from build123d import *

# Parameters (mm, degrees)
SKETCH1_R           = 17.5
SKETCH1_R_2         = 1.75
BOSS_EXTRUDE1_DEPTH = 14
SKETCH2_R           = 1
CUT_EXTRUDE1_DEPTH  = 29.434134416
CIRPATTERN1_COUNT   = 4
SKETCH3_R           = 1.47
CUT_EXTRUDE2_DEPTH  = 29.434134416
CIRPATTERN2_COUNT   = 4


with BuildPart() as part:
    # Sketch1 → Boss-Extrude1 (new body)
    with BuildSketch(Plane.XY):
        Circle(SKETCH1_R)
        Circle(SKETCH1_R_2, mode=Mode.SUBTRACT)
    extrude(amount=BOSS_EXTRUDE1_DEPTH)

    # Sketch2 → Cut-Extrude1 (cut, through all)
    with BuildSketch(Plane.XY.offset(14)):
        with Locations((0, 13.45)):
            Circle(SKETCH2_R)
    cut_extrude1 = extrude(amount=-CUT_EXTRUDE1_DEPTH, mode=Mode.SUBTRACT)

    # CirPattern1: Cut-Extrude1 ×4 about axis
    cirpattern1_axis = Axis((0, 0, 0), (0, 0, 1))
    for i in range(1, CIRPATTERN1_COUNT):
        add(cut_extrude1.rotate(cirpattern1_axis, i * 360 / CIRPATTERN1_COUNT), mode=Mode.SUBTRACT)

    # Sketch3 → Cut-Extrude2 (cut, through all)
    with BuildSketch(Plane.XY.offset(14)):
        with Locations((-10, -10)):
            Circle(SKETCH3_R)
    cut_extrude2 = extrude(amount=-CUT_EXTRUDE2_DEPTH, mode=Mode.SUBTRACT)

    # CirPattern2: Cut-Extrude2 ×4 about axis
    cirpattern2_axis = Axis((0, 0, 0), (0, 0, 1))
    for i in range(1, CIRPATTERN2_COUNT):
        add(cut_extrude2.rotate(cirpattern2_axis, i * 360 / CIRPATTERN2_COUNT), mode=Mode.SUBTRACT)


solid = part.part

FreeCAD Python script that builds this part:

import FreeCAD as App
import Part
import Sketcher
from FreeCAD import Vector
Q = App.Units.Quantity

doc = App.newDocument("Part")
body = doc.addObject("PartDesign::Body", "Body")

sketch1 = doc.addObject("Sketcher::SketchObject", "Sketch")
body.addObject(sketch1)
sketch1.AttachmentSupport = (doc.XY_Plane, [""])
sketch1.MapMode = "FlatFace"
sketch1.addGeometry(Part.Circle(Vector(0, 0, 0), Vector(0, 0, 1), 17.5), False)
sketch1.addGeometry(Part.Circle(Vector(0, 0, 0), Vector(0, 0, 1), 1.75), False)
sketch1.addConstraint(Sketcher.Constraint("Coincident", 0, 3, -1, 1))
sketch1.addConstraint(Sketcher.Constraint("Coincident", 1, 3, -1, 1))
sketch1.addConstraint(Sketcher.Constraint("Diameter", 0, Q("35 mm")))
sketch1.addConstraint(Sketcher.Constraint("Diameter", 1, Q("3.5 mm")))
pad1 = doc.addObject("PartDesign::Pad", "Pad")
body.addObject(pad1)
pad1.Profile = sketch1
pad1.Length = 14

sketch2 = doc.addObject("Sketcher::SketchObject", "Sketch001")
body.addObject(sketch2)
sketch2.AttachmentSupport = (doc.XY_Plane, [""])
sketch2.MapMode = "FlatFace"
sketch2.AttachmentOffset = App.Placement(Vector(0, 0, 14), App.Rotation())
sketch2.addGeometry(Part.Circle(Vector(0, 13.45, 0), Vector(0, 0, 1), 1), False)
sketch2.addConstraint(Sketcher.Constraint("PointOnObject", 0, 3, -2))
sketch2.addConstraint(Sketcher.Constraint("Diameter", 0, Q("2 mm")))
sketch2.addConstraint(Sketcher.Constraint("DistanceY", -1, 1, 0, 3, Q("13.45 mm")))
pocket1 = doc.addObject("PartDesign::Pocket", "Pocket")
body.addObject(pocket1)
pocket1.Profile = sketch2
pocket1.Type = "ThroughAll"
doc.recompute()

polarpattern = doc.addObject("PartDesign::PolarPattern", "PolarPattern")
body.addObject(polarpattern)
polarpattern.Originals = [pocket1]
polarpattern.Axis = (doc.Z_Axis, [""])
polarpattern.Angle = 360
polarpattern.Occurrences = 4
body.Tip = polarpattern

sketch3 = doc.addObject("Sketcher::SketchObject", "Sketch002")
body.addObject(sketch3)
sketch3.AttachmentSupport = (doc.XY_Plane, [""])
sketch3.MapMode = "FlatFace"
sketch3.AttachmentOffset = App.Placement(Vector(0, 0, 14), App.Rotation())
sketch3.addGeometry(Part.Circle(Vector(-10, -10, 0), Vector(0, 0, 1), 1.47), False)
sketch3.addConstraint(Sketcher.Constraint("Diameter", 0, Q("2.94 mm")))
sketch3.addConstraint(Sketcher.Constraint("DistanceX", 0, 3, -1, 1, Q("10 mm")))
sketch3.addConstraint(Sketcher.Constraint("DistanceY", 0, 3, -1, 1, Q("10 mm")))
pocket2 = doc.addObject("PartDesign::Pocket", "Pocket001")
body.addObject(pocket2)
pocket2.Profile = sketch3
pocket2.Type = "ThroughAll"
doc.recompute()

polarpattern2 = doc.addObject("PartDesign::PolarPattern", "PolarPattern001")
body.addObject(polarpattern2)
polarpattern2.Originals = [pocket2]
polarpattern2.Axis = (doc.Z_Axis, [""])
polarpattern2.Angle = 360
polarpattern2.Occurrences = 4
body.Tip = polarpattern2

doc.recompute()
